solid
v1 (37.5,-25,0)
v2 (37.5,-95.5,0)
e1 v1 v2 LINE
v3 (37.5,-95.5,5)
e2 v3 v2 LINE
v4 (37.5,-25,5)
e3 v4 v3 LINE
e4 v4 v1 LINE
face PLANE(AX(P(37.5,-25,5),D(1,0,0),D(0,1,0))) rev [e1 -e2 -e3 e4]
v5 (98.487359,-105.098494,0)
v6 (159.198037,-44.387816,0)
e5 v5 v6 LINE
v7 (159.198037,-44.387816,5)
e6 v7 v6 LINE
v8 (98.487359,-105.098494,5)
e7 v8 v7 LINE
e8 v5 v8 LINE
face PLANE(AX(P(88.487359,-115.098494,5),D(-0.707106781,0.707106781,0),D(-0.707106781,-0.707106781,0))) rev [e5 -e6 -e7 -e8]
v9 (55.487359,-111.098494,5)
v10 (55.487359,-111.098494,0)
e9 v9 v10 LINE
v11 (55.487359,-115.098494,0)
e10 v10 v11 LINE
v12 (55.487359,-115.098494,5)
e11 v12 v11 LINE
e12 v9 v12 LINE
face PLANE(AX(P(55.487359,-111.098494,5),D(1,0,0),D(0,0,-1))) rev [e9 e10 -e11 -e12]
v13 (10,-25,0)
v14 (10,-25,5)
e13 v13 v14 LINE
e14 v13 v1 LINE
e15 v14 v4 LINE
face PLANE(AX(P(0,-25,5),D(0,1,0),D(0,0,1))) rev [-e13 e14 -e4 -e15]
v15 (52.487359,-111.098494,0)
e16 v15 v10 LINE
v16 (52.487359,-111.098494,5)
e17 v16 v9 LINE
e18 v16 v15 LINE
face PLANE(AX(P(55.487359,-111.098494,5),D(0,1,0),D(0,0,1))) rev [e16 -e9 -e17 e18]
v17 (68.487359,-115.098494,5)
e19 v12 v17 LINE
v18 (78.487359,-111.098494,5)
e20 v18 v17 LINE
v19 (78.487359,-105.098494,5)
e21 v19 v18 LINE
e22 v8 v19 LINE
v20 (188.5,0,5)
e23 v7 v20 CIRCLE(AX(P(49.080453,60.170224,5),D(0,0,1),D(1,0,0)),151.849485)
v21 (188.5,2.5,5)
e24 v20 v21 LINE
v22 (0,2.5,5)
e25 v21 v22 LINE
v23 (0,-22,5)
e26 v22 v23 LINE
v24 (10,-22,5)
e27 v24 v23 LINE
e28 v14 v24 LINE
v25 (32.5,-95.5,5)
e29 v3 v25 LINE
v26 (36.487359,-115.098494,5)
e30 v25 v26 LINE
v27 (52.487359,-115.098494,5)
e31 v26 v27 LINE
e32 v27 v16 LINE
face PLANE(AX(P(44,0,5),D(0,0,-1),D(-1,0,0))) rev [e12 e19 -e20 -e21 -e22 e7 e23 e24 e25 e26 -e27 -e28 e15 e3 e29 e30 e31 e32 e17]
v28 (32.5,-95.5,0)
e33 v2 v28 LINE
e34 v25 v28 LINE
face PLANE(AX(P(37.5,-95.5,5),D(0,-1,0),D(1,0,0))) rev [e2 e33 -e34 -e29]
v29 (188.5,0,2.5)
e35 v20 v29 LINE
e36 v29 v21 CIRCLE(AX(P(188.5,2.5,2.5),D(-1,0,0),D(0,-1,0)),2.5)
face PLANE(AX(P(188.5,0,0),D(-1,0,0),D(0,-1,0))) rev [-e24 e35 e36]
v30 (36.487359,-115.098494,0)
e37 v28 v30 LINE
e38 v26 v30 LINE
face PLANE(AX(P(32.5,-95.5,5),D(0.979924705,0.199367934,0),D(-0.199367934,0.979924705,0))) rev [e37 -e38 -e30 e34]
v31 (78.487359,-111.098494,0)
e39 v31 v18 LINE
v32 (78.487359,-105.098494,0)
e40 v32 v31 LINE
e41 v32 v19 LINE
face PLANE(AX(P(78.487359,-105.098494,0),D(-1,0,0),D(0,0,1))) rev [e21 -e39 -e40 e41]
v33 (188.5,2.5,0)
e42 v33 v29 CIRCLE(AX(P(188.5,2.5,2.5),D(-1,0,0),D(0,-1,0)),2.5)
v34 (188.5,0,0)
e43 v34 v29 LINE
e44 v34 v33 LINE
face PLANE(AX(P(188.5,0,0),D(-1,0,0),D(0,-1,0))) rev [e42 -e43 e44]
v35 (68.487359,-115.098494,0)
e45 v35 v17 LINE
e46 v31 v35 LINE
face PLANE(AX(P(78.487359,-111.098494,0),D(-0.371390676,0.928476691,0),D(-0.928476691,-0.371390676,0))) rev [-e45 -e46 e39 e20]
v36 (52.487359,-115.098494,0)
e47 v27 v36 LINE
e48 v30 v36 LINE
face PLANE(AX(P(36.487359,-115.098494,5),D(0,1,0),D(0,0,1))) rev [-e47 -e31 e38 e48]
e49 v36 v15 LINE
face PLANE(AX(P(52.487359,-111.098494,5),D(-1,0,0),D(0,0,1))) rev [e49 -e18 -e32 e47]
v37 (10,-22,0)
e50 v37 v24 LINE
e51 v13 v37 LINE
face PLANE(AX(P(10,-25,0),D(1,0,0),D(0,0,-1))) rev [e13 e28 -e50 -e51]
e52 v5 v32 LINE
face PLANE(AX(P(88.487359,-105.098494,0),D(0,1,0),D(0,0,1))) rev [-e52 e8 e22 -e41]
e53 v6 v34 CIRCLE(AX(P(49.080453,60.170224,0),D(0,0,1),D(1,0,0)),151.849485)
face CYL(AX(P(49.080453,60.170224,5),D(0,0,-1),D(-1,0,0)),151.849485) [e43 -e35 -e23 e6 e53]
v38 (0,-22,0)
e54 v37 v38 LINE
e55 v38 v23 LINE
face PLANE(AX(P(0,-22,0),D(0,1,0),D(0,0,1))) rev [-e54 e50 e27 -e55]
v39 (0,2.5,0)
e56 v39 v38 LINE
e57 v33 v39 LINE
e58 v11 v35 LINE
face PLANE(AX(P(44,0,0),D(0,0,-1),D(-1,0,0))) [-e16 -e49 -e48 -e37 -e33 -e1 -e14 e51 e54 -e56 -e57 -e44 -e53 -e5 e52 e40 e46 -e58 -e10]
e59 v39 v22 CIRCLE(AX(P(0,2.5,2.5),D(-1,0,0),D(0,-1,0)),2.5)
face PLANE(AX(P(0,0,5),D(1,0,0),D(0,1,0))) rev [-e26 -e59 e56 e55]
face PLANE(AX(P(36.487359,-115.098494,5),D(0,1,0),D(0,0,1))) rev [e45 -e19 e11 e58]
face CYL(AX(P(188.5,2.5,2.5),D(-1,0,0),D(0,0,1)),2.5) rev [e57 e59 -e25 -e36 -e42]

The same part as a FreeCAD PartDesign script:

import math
import FreeCAD as App
import Part
import Sketcher

V = App.Vector
Q = App.Units.Quantity


def add_polygon(sketch, points):
    """Adds a closed chain of lines whose ends are joined by coincident constraints."""
    first, n = sketch.GeometryCount, len(points)
    for a, b in zip(points, points[1:] + points[:1]):
        sketch.addGeometry(Part.LineSegment(App.Vector(*a, 0), App.Vector(*b, 0)), False)
    for i in range(n):
        sketch.addConstraint(Sketcher.Constraint("Coincident", first + i, 2, first + (i + 1) % n, 1))

doc = App.newDocument("Part")
body = doc.addObject("PartDesign::Body", "Body")

# Sketch on XY plane
sketch1 = body.newObject("Sketcher::SketchObject", "Sketch")
sketch1.AttachmentSupport = (doc.getObject("XY_Plane"), [""])
sketch1.MapMode = "FlatFace"
sketch1.addGeometry([
    Part.LineSegment(V(0, 0, 0), V(0, -25, 0)),  # 0
    Part.LineSegment(V(0, -25, 0), V(38, -25, 0)),  # 1
    Part.LineSegment(V(38, -25, 0), V(38, -96, 0)),  # 2
    Part.LineSegment(V(38, -96, 0), V(32, -96, 0)),  # 3
    Part.LineSegment(V(32, -96, 0), V(36, -115, 0)),  # 4
    Part.LineSegment(V(36, -115, 0), V(88, -115, 0)),  # 5
    Part.LineSegment(V(88, -115, 0), V(159, -44, 0)),  # 6
    Part.ArcOfCircle(Part.Circle(V(49, 60, 0), V(0, 0, 1), 152), math.radians(-44), math.radians(-6)),  # 7
    Part.LineSegment(V(200, 45, 0), V(44, 44, 0)),  # 8
    Part.ArcOfCircle(Part.Circle(V(44, 0, 0), V(0, 0, 1), 44), math.radians(90), math.radians(180)),  # 9
], False)
sketch1.addConstraint([
    Sketcher.Constraint("Coincident", 0, 2, 1, 1),
    Sketcher.Constraint("Coincident", 1, 2, 2, 1),
    Sketcher.Constraint("Coincident", 2, 2, 3, 1),
    Sketcher.Constraint("Coincident", 3, 2, 4, 1),
    Sketcher.Constraint("Coincident", 4, 2, 5, 1),
    Sketcher.Constraint("Coincident", 5, 2, 6, 1),
    Sketcher.Constraint("Coincident", 6, 2, 7, 1),
    Sketcher.Constraint("Coincident", 7, 2, 8, 1),
    Sketcher.Constraint("Tangent", 8, 2, 9, 1),
    Sketcher.Constraint("Tangent", 9, 2, 0, 1),
    Sketcher.Constraint("Vertical", 0),
    Sketcher.Constraint("Horizontal", 1),
    Sketcher.Constraint("Vertical", 2),
    Sketcher.Constraint("Horizontal", 3),
    Sketcher.Constraint("Horizontal", 5),
    Sketcher.Constraint("Coincident", 9, 2, -1, 1),
    Sketcher.Constraint("Radius", 9, Q("44 mm")),
    Sketcher.Constraint("DistanceX", 3, 2, 3, 1, Q("5 mm")),
    Sketcher.Constraint("DistanceX", 5, 1, 5, 2, Q("52 mm")),
    Sketcher.Constraint("DistanceY", 0, 2, 0, 1, Q("25 mm")),
    Sketcher.Constraint("Angle", 6, Q("45 deg")),
    Sketcher.Constraint("Distance", 4, Q("20 mm")),
    Sketcher.Constraint("Distance", 6, Q("100 mm")),
    Sketcher.Constraint("DistanceX", 1, 1, 1, 2, Q("37.5 mm")),
    Sketcher.Constraint("DistanceY", 2, 2, 2, 1, Q("70.5 mm")),
    Sketcher.Constraint("Angle", 4, Q("-78.5 deg")),
    Sketcher.Constraint("Radius", 7, Q("151.849485 mm")),
    Sketcher.Constraint("DistanceX", 6, 2, 7, 2, Q("40.984889 mm")),
    Sketcher.Constraint("DistanceY", 6, 2, 7, 2, Q("89.514479 mm")),
])
pad1 = body.newObject("PartDesign::Pad", "Pad")
pad1.Profile = sketch1
pad1.Length = 5

# Sketch on XY plane
sketch2 = body.newObject("Sketcher::SketchObject", "Sketch001")
sketch2.AttachmentSupport = (doc.getObject("XY_Plane"), [""])
sketch2.MapMode = "FlatFace"
sketch2.AttachmentOffset = App.Placement(V(0, 0, 5), App.Rotation())
add_polygon(sketch2, [(0, -22), (0, -25), (10, -25), (10, -22)])  # lines 0-3
sketch2.addConstraint([
    Sketcher.Constraint("Vertical", 0),
    Sketcher.Constraint("Horizontal", 1),
    Sketcher.Constraint("Vertical", 2),
    Sketcher.Constraint("Horizontal", 3),
    Sketcher.Constraint("PointOnObject", 0, 2, -2),
    Sketcher.Constraint("DistanceX", 1, 1, 1, 2, Q("10 mm")),
    Sketcher.Constraint("DistanceY", 0, 2, 0, 1, Q("3 mm")),
    Sketcher.Constraint("DistanceY", 0, 2, -1, 1, Q("25 mm")),
])
pocket1 = body.newObject("PartDesign::Pocket", "Pocket")
pocket1.Profile = sketch2
pocket1.Type = "ThroughAll"

# Sketch on XY plane
sketch3 = body.newObject("Sketcher::SketchObject", "Sketch002")
sketch3.AttachmentSupport = (doc.getObject("XY_Plane"), [""])
sketch3.MapMode = "FlatFace"
sketch3.AttachmentOffset = App.Placement(V(0, 0, 5), App.Rotation())
add_polygon(sketch3, [(78, -105), (78, -111), (68, -115), (88, -115), (98, -105)])  # lines 0-4
sketch3.addConstraint([
    Sketcher.Constraint("Vertical", 0),
    Sketcher.Constraint("Horizontal", 2),
    Sketcher.Constraint("Horizontal", 4),
    Sketcher.Constraint("Equal", 2, 4),
    Sketcher.Constraint("DistanceX", 2, 1, 2, 2, Q("20 mm")),
    Sketcher.Constraint("DistanceY", 0, 2, 0, 1, Q("6 mm")),
    Sketcher.Constraint("Angle", 3, Q("45 deg")),
    Sketcher.Constraint("DistanceX", 1, 2, 0, 2, Q("10 mm")),
    Sketcher.Constraint("DistanceX", -1, 1, 0, 2, Q("78.487359 mm")),
    Sketcher.Constraint("DistanceY", 0, 2, -1, 1, Q("111.098494 mm")),
])
pocket2 = body.newObject("PartDesign::Pocket", "Pocket001")
pocket2.Profile = sketch3
pocket2.Type = "ThroughAll"

# Sketch on XY plane
sketch4 = body.newObject("Sketcher::SketchObject", "Sketch003")
sketch4.AttachmentSupport = (doc.getObject("XY_Plane"), [""])
sketch4.MapMode = "FlatFace"
sketch4.AttachmentOffset = App.Placement(V(0, 0, 5), App.Rotation())
add_polygon(sketch4, [(0, 0), (188, 0), (209, -2), (219, 63), (19, 66), (-16, 12)])  # lines 0-5
sketch4.addConstraint([
    Sketcher.Constraint("Horizontal", 0),
    Sketcher.Constraint("Coincident", 5, 2, -1, 1),
    Sketcher.Constraint("DistanceX", 0, 1, 0, 2, Q("188.5 mm")),
    Sketcher.Constraint("DistanceY", 2, 2, 3, 2, Q("2.708901 mm")),
    Sketcher.Constraint("Distance", 5, Q("19.980491 mm")),
    Sketcher.Constraint("DistanceX", -1, 1, 1, 2, Q("209.362191 mm")),
    Sketcher.Constraint("DistanceY", 1, 2, -1, 1, Q("2.460738 mm")),
    Sketcher.Constraint("DistanceX", -1, 1, 2, 2, Q("219.452028 mm")),
    Sketcher.Constraint("DistanceX", -1, 1, 3, 2, Q("19.47758 mm")),
    Sketcher.Constraint("DistanceY", -1, 1, 3, 2, Q("66.088919 mm")),
    Sketcher.Constraint("Distance", 4, Q("64.113616 mm")),
])
pocket3 = body.newObject("PartDesign::Pocket", "Pocket002")
pocket3.Profile = sketch4
pocket3.Type = "ThroughAll"

# Sketch on YZ plane
sketch5 = body.newObject("Sketcher::SketchObject", "Sketch004")
sketch5.AttachmentSupport = (doc.getObject("YZ_Plane"), [""])
sketch5.MapMode = "FlatFace"
sketch5.addGeometry([
    Part.LineSegment(V(0, 2.5, 0), V(0, 5, 0)),  # 0
    Part.LineSegment(V(0, 5, 0), V(2.5, 5, 0)),  # 1
    Part.ArcOfCircle(Part.Circle(V(2.5, 2.5, 0), V(0, 0, 1), 2.5), math.radians(90), math.radians(180)),  # 2
    Part.LineSegment(V(0, 0, 0), V(0, 2.5, 0)),  # 3
    Part.ArcOfCircle(Part.Circle(V(2.5, 2.5, 0), V(0, 0, 1), 2.5), math.radians(180), math.radians(270)),  # 4
    Part.LineSegment(V(2.5, 0, 0), V(0, 0, 0)),  # 5
], False)
sketch5.addConstraint([
    Sketcher.Constraint("Coincident", 0, 2, 1, 1),
    Sketcher.Constraint("Tangent", 1, 2, 2, 1),
    Sketcher.Constraint("Tangent", 2, 2, 0, 1),
    Sketcher.Constraint("Tangent", 3, 2, 4, 1),
    Sketcher.Constraint("Tangent", 4, 2, 5, 1),
    Sketcher.Constraint("Coincident", 5, 2, 3, 1),
    Sketcher.Constraint("Vertical", 0),
    Sketcher.Constraint("Horizontal", 1),
    Sketcher.Constraint("Vertical", 3),
    Sketcher.Constraint("Horizontal", 5),
    Sketcher.Constraint("Coincident", 5, 2, -1, 1),
    Sketcher.Constraint("Coincident", 4, 3, 2, 3),
    Sketcher.Constraint("Equal", 2, 4),
    Sketcher.Constraint("Radius", 2, Q("2.5 mm")),
])
pad2 = body.newObject("PartDesign::Pad", "Pad001")
pad2.Profile = sketch5
pad2.Length = 188.5

# Sketch on XY plane
sketch6 = body.newObject("Sketcher::SketchObject", "Sketch005")
sketch6.AttachmentSupport = (doc.getObject("XY_Plane"), [""])
sketch6.MapMode = "FlatFace"
add_polygon(sketch6, [(55.5, -111.1), (55.5, -115.1), (52.5, -115.1), (52.5, -111.1)])  # lines 0-3
sketch6.addConstraint([
    Sketcher.Constraint("Vertical", 0),
    Sketcher.Constraint("Horizontal", 1),
    Sketcher.Constraint("Vertical", 2),
    Sketcher.Constraint("Horizontal", 3),
    Sketcher.Constraint("DistanceX", 1, 2, 1, 1, Q("3 mm")),
    Sketcher.Constraint("DistanceY", 0, 2, 0, 1, Q("4 mm")),
    Sketcher.Constraint("DistanceX", -1, 1, 0, 2, Q("55.487359 mm")),
    Sketcher.Constraint("DistanceY", 0, 2, -1, 1, Q("115.098494 mm")),
])
pocket4 = body.newObject("PartDesign::Pocket", "Pocket003")
pocket4.Profile = sketch6
pocket4.Type = "ThroughAll"
pocket4.Reversed = True

doc.recompute()
